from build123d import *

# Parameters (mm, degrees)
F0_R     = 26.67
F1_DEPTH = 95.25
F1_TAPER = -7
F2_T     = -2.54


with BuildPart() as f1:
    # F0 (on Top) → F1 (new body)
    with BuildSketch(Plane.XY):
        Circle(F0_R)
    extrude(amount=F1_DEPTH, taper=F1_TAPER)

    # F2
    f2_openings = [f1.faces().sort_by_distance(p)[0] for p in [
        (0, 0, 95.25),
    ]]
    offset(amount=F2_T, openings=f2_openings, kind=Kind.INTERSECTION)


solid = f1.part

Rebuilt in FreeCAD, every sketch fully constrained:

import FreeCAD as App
import Part
import Sketcher
from FreeCAD import Vector
Q = App.Units.Quantity


def faces_at(feature, points):
    """Names of the faces that lie closest to the given points."""
    faces = feature.Shape.Faces
    near = lambda p: min(range(len(faces)), key=lambda i: faces[i].distToShape(Part.Vertex(*p))[0])
    return sorted({f"Face{near(p) + 1}" for p in points})

doc = App.newDocument("Part")
body = doc.addObject("PartDesign::Body", "Body")

sketch1 = body.newObject("Sketcher::SketchObject", "Sketch")
sketch1.AttachmentSupport = (doc.getObject("XY_Plane"), [""])
sketch1.MapMode = "FlatFace"
sketch1.addGeometry(Part.Circle(Vector(0, 0, 0), Vector(0, 0, 1), 27), False)
sketch1.addConstraint(Sketcher.Constraint("Coincident", 0, 3, -1, 1))
sketch1.addConstraint(Sketcher.Constraint("Diameter", 0, Q("2.1 in")))
pad1 = body.newObject("PartDesign::Pad", "Pad")
pad1.Profile = sketch1
pad1.Length = Q("3.75 in")
pad1.TaperAngle = 7
doc.recompute()

thickness = body.newObject("PartDesign::Thickness", "Thickness")
thickness.Base = (pad1, faces_at(pad1, [(0, 0, 95.25)]))
thickness.Value = Q("0.1 in")
thickness.Reversed = True
thickness.Join = "Intersection"

doc.recompute()
